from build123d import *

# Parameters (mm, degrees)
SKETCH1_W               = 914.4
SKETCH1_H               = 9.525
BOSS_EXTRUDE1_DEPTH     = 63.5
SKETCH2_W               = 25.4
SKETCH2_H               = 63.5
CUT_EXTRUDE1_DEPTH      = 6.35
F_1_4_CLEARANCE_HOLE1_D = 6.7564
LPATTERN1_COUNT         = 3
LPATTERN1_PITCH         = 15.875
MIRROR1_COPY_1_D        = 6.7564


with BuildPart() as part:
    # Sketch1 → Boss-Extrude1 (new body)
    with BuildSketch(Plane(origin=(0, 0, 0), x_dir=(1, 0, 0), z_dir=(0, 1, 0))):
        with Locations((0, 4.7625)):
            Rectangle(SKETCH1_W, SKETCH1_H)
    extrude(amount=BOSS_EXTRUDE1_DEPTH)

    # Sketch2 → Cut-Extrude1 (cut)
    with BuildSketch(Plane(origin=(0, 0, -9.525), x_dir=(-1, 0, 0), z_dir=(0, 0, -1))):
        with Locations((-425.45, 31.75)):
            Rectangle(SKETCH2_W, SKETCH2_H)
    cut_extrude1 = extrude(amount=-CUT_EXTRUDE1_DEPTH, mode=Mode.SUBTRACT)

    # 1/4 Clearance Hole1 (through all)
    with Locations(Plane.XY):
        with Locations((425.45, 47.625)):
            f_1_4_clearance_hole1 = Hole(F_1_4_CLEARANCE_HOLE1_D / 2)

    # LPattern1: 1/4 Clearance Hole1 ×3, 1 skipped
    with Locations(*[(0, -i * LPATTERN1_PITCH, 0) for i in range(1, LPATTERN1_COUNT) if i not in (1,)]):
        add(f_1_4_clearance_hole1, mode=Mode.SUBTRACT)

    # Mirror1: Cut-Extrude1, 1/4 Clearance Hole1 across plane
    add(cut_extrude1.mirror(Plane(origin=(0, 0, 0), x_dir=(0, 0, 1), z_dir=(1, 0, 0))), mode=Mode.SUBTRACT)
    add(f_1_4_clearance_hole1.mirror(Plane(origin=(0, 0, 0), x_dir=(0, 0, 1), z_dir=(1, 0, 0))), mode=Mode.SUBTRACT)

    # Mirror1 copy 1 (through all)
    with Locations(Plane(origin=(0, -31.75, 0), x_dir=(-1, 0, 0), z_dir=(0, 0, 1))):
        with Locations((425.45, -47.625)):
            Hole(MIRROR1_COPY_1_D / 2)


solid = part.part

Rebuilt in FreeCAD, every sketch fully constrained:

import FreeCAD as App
import Part
import Sketcher
Q = App.Units.Quantity


def add_polygon(sketch, points):
    """Adds a closed chain of lines whose ends are joined by coincident constraints."""
    first, n = sketch.GeometryCount, len(points)
    for a, b in zip(points, points[1:] + points[:1]):
        sketch.addGeometry(Part.LineSegment(App.Vector(*a, 0), App.Vector(*b, 0)), False)
    for i in range(n):
        sketch.addConstraint(Sketcher.Constraint("Coincident", first + i, 2, first + (i + 1) % n, 1))

doc = App.newDocument("Part")
params = doc.addObject("Spreadsheet::Sheet", "Params")
for row, (alias, value) in enumerate([
    ("sketch1_width", "36 in"),
    ("sketch1_height", "0.375 in"),
    ("pad1_length", "2.5 in"),
    ("sketch2_width", "1 in"),
    ("sketch2_height", "2.5 in"),
    ("pocket1_length", "0.25 in"),
    ("sketch3_diameter", "0.266 in"),
    ("hole_diameter", "0.266 in"),
    ("linearpattern_pitch", "1.25 in"),
    ("sketch4_diameter", "0.266 in"),
    ("hole2_diameter", "0.266 in"),
], start=1):
    params.set(f"A{row}", alias)
    params.set(f"B{row}", "=" + value)
    params.setAlias(f"B{row}", alias)

body = doc.addObject("PartDesign::Body", "Body")

# Sketch on XZ plane
sketch1 = body.newObject("Sketcher::SketchObject", "Sketch")
sketch1.AttachmentSupport = (doc.getObject("XZ_Plane"), [""])
sketch1.MapMode = "FlatFace"
add_polygon(sketch1, [(-457, -10), (-457, 0), (457, 0), (457, -10)])  # lines 0-3
sketch1.addConstraint([
    Sketcher.Constraint("Vertical", 0),
    Sketcher.Constraint("Horizontal", 1),
    Sketcher.Constraint("Vertical", 2),
    Sketcher.Constraint("Horizontal", 3),
    Sketcher.Constraint("Symmetric", 0, 2, 1, 2, -1, 1),
    Sketcher.Constraint("DistanceX", 1, 1, 1, 2, Q("36 in")),
    Sketcher.Constraint("DistanceY", 0, 1, 0, 2, Q("0.375 in")),
])
sketch1.setExpression("Constraints[9]", "Params.sketch1_width")
sketch1.setExpression("Constraints[10]", "Params.sketch1_height")
pad1 = body.newObject("PartDesign::Pad", "Pad")
pad1.Profile = sketch1
pad1.setExpression("Length", "Params.pad1_length")
pad1.Reversed = True

# Sketch on XY plane
sketch2 = body.newObject("Sketcher::SketchObject", "Sketch001")
sketch2.AttachmentSupport = (doc.getObject("XY_Plane"), [""])
sketch2.MapMode = "FlatFace"
sketch2.AttachmentOffset = App.Placement(App.Vector(0, 0, -0.375 * 25.4), App.Rotation())
add_polygon(sketch2, [(438, 64), (438, 0), (413, 0), (413, 64)])  # lines 0-3
sketch2.addConstraint([
    Sketcher.Constraint("Vertical", 0),
    Sketcher.Constraint("Horizontal", 1),
    Sketcher.Constraint("Vertical", 2),
    Sketcher.Constraint("Horizontal", 3),
    Sketcher.Constraint("PointOnObject", 0, 2, -1),
    Sketcher.Constraint("DistanceX", 1, 2, 1, 1, Q("1 in")),
    Sketcher.Constraint("DistanceY", 0, 2, 0, 1, Q("2.5 in")),
    Sketcher.Constraint("DistanceX", -1, 1, 0, 2, Q("17.25 in")),
])
sketch2.setExpression("Constraints[9]", "Params.sketch2_width")
sketch2.setExpression("Constraints[10]", "Params.sketch2_height")
pocket1 = body.newObject("PartDesign::Pocket", "Pocket")
pocket1.Profile = sketch2
pocket1.setExpression("Length", "Params.pocket1_length")
pocket1.Reversed = True

# Sketch on XY plane
sketch3 = body.newObject("Sketcher::SketchObject", "Sketch002")
sketch3.AttachmentSupport = (doc.getObject("XY_Plane"), [""])
sketch3.MapMode = "FlatFace"
sketch3.addGeometry(Part.Circle(App.Vector(425.4, 47.6, 0), App.Vector(0, 0, 1), 3.4), False)
sketch3.addConstraint([
    Sketcher.Constraint("Diameter", 0, Q("0.266 in")),
    Sketcher.Constraint("DistanceX", -1, 1, 0, 3, Q("16.75 in")),
    Sketcher.Constraint("DistanceY", -1, 1, 0, 3, Q("1.875 in")),
])
sketch3.setExpression("Constraints[0]", "Params.sketch3_diameter")
doc.recompute()
hole = body.newObject("PartDesign::Hole", "Hole")
hole.Profile = sketch3
hole.ThreadType = "None"
hole.setExpression("Diameter", "Params.hole_diameter")
hole.DepthType = "ThroughAll"
doc.recompute()

linearpattern = body.newObject("PartDesign::LinearPattern", "LinearPattern")
linearpattern.Originals = [hole]
linearpattern.Direction = (doc.getObject("Y_Axis"), [""])
linearpattern.Mode = "offset"
linearpattern.setExpression("Offset", "Params.linearpattern_pitch")
linearpattern.Occurrences = 2
linearpattern.Reversed = True
body.Tip = linearpattern
doc.recompute()

mirrored = body.newObject("PartDesign::Mirrored", "Mirrored")
mirrored.Originals = [pocket1, hole]
mirrored.MirrorPlane = (doc.getObject("YZ_Plane"), [""])
body.Tip = mirrored

# Sketch on XY plane
sketch4 = body.newObject("Sketcher::SketchObject", "Sketch003")
sketch4.AttachmentSupport = (doc.getObject("XY_Plane"), [""])
sketch4.MapMode = "FlatFace"
sketch4.addGeometry(Part.Circle(App.Vector(-425.4, 15.9, 0), App.Vector(0, 0, 1), 3.4), False)
sketch4.addConstraint([
    Sketcher.Constraint("Diameter", 0, Q("0.266 in")),
    Sketcher.Constraint("DistanceX", 0, 3, -1, 1, Q("16.75 in")),
    Sketcher.Constraint("DistanceY", -1, 1, 0, 3, Q("0.625 in")),
])
sketch4.setExpression("Constraints[0]", "Params.sketch4_diameter")
doc.recompute()
hole2 = body.newObject("PartDesign::Hole", "Hole001")
hole2.Profile = sketch4
hole2.ThreadType = "None"
hole2.setExpression("Diameter", "Params.hole2_diameter")
hole2.DepthType = "ThroughAll"

doc.recompute()
